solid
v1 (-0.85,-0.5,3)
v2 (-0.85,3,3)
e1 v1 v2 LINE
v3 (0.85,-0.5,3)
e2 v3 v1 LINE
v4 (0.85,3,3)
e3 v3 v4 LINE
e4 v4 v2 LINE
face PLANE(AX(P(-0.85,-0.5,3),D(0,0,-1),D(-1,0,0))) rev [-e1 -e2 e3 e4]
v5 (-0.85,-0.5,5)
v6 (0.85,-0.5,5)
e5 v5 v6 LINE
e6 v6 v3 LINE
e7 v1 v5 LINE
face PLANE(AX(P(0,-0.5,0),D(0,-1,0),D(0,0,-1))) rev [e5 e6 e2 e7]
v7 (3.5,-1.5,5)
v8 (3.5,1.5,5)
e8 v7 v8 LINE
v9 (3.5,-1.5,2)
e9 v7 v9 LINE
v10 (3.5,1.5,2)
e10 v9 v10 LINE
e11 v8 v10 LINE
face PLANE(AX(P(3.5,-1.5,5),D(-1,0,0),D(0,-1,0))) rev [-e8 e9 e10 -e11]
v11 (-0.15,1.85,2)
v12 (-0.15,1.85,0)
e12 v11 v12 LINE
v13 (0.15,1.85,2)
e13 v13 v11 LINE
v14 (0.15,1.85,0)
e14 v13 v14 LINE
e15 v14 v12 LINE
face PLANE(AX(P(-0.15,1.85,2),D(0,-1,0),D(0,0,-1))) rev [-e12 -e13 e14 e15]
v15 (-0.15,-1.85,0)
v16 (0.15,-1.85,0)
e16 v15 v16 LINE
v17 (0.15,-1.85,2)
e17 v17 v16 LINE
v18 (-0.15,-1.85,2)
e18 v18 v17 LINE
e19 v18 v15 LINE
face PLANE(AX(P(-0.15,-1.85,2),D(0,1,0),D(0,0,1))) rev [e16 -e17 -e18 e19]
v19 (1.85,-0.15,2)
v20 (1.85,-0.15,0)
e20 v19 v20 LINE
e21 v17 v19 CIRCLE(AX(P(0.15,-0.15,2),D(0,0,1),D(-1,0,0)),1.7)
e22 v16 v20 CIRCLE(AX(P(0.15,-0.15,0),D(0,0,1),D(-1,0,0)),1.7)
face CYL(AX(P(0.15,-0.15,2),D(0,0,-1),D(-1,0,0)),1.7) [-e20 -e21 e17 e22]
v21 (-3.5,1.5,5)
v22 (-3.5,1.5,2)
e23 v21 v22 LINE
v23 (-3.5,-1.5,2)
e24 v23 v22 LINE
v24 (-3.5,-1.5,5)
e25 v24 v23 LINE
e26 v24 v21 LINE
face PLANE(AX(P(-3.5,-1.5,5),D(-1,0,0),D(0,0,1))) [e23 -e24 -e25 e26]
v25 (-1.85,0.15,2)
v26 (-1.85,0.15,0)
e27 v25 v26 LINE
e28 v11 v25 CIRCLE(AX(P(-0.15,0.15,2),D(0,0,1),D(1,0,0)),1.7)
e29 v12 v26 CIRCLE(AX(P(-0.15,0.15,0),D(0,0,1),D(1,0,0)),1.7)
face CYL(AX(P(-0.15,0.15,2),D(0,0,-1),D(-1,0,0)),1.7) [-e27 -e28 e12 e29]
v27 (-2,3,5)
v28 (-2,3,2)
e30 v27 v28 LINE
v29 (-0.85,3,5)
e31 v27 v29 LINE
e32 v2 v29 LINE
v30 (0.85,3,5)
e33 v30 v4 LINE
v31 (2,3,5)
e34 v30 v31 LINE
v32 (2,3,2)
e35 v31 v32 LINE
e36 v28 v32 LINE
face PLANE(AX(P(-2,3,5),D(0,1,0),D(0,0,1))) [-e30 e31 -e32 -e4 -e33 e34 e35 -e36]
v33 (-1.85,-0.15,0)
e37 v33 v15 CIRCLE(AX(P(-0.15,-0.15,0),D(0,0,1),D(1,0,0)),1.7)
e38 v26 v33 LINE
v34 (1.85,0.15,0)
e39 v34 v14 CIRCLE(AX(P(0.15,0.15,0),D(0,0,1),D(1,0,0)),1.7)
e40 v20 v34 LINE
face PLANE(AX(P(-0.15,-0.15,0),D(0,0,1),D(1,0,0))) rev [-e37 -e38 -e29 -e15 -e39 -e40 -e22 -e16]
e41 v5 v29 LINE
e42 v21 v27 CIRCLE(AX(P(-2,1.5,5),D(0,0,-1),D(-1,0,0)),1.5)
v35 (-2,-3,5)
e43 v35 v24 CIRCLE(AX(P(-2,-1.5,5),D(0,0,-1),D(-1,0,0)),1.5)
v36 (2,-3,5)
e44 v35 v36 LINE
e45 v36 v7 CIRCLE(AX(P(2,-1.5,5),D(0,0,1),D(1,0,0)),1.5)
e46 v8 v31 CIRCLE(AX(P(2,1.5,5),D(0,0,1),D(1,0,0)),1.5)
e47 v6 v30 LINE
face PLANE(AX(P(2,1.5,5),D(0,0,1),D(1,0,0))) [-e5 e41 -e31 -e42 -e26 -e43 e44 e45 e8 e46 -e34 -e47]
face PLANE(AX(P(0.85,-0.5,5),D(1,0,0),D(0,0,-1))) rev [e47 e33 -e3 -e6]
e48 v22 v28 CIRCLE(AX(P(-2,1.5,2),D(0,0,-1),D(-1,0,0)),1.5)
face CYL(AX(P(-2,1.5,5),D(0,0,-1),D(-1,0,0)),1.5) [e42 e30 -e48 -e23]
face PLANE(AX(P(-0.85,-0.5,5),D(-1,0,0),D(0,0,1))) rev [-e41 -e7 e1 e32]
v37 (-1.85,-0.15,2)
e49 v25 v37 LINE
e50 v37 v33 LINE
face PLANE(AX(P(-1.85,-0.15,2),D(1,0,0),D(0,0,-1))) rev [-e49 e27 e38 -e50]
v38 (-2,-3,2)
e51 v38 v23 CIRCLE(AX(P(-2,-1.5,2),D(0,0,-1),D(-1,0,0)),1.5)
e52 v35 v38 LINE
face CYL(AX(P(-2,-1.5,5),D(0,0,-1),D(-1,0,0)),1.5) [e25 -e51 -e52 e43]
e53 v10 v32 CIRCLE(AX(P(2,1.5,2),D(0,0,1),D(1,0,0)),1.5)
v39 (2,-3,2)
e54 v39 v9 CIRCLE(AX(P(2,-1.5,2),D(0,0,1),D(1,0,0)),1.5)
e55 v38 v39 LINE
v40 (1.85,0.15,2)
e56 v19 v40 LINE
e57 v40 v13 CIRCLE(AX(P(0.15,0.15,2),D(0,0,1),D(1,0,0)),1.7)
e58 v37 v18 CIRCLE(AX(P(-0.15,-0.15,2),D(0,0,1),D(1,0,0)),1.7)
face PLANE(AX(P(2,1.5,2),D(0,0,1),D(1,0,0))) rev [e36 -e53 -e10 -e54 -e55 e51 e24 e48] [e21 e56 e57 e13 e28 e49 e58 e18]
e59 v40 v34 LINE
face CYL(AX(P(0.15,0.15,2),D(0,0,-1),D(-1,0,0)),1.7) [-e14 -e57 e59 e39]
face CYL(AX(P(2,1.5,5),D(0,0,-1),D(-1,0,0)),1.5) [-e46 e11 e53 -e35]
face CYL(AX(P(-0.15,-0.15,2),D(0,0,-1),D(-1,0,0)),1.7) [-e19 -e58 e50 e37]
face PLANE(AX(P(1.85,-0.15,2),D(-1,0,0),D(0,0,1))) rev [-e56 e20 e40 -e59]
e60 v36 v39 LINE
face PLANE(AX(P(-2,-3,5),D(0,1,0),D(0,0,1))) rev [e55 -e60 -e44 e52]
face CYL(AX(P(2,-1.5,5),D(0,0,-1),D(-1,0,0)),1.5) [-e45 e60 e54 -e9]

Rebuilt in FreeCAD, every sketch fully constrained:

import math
import FreeCAD as App
import Part
import Sketcher

doc = App.newDocument("Part")
params = doc.addObject("Spreadsheet::Sheet", "Params")
for row, (alias, value) in enumerate([
    ("sketch1_radius", "1.7 mm"),
    ("sketch1_width", "0.3 mm"),
    ("pad1_length", "2 mm"),
    ("sketch2_radius", "1.5 mm"),
    ("sketch2_width", "4 mm"),
    ("sketch2_height", "3 mm"),
    ("pad2_length", "3 mm"),
    ("sketch3_height", "2 mm"),
    ("sketch3_width", "1.7 mm"),
    ("pocket1_length", "3.5 mm"),
], start=1):
    params.set(f"A{row}", alias)
    params.set(f"B{row}", "=" + value)
    params.setAlias(f"B{row}", alias)

body = doc.addObject("PartDesign::Body", "Body")

# Sketch on XY plane
sketch1 = body.newObject("Sketcher::SketchObject", "Sketch")
sketch1.AttachmentSupport = (doc.getObject("XY_Plane"), [""])
sketch1.MapMode = "FlatFace"
sketch1.addGeometry([
    Part.LineSegment(App.Vector(-0.15, -1.85, 0), App.Vector(0.15, -1.85, 0)),  # 0
    Part.ArcOfCircle(Part.Circle(App.Vector(0.15, -0.15, 0), App.Vector(0, 0, 1), 1.7), math.radians(-90), math.radians(0)),  # 1
    Part.LineSegment(App.Vector(1.85, -0.15, 0), App.Vector(1.85, 0.15, 0)),  # 2
    Part.ArcOfCircle(Part.Circle(App.Vector(0.15, 0.15, 0), App.Vector(0, 0, 1), 1.7), math.radians(0), math.radians(90)),  # 3
    Part.LineSegment(App.Vector(0.15, 1.85, 0), App.Vector(-0.15, 1.85, 0)),  # 4
    Part.ArcOfCircle(Part.Circle(App.Vector(-0.15, 0.15, 0), App.Vector(0, 0, 1), 1.7), math.radians(90), math.radians(180)),  # 5
    Part.LineSegment(App.Vector(-1.85, 0.15, 0), App.Vector(-1.85, -0.15, 0)),  # 6
    Part.ArcOfCircle(Part.Circle(App.Vector(-0.15, -0.15, 0), App.Vector(0, 0, 1), 1.7), math.radians(180), math.radians(270)),  # 7
], False)
sketch1.addConstraint([
    Sketcher.Constraint("Tangent", 0, 2, 1, 1),
    Sketcher.Constraint("Tangent", 1, 2, 2, 1),
    Sketcher.Constraint("Tangent", 2, 2, 3, 1),
    Sketcher.Constraint("Tangent", 3, 2, 4, 1),
    Sketcher.Constraint("Tangent", 4, 2, 5, 1),
    Sketcher.Constraint("Tangent", 5, 2, 6, 1),
    Sketcher.Constraint("Tangent", 6, 2, 7, 1),
    Sketcher.Constraint("Tangent", 7, 2, 0, 1),
    Sketcher.Constraint("Horizontal", 0),
    Sketcher.Constraint("Vertical", 2),
    Sketcher.Constraint("Horizontal", 4),
    Sketcher.Constraint("Vertical", 6),
    Sketcher.Constraint("Equal", 1, 3),
    Sketcher.Constraint("Equal", 3, 5),
    Sketcher.Constraint("Equal", 5, 7),
    Sketcher.Constraint("Symmetric", 1, 3, 5, 3, -1, 1),
    Sketcher.Constraint("Equal", 4, 2),
    Sketcher.Constraint("Radius", 1, 1.7),
    Sketcher.Constraint("DistanceX", 0, 1, 0, 2, 0.3),
])
sketch1.setExpression("Constraints[17]", "Params.sketch1_radius")
sketch1.setExpression("Constraints[18]", "Params.sketch1_width")
pad1 = body.newObject("PartDesign::Pad", "Pad")
pad1.Profile = sketch1
pad1.setExpression("Length", "Params.pad1_length")

# Sketch on XY plane
sketch2 = body.newObject("Sketcher::SketchObject", "Sketch001")
sketch2.AttachmentSupport = (doc.getObject("XY_Plane"), [""])
sketch2.MapMode = "FlatFace"
sketch2.AttachmentOffset = App.Placement(App.Vector(0, 0, 2), App.Rotation())
sketch2.addGeometry([
    Part.LineSegment(App.Vector(-2, -3, 0), App.Vector(2, -3, 0)),  # 0
    Part.ArcOfCircle(Part.Circle(App.Vector(2, -1.5, 0), App.Vector(0, 0, 1), 1.5), math.radians(-90), math.radians(0)),  # 1
    Part.LineSegment(App.Vector(3.5, -1.5, 0), App.Vector(3.5, 1.5, 0)),  # 2
    Part.ArcOfCircle(Part.Circle(App.Vector(2, 1.5, 0), App.Vector(0, 0, 1), 1.5), math.radians(0), math.radians(90)),  # 3
    Part.LineSegment(App.Vector(2, 3, 0), App.Vector(-2, 3, 0)),  # 4
    Part.ArcOfCircle(Part.Circle(App.Vector(-2, 1.5, 0), App.Vector(0, 0, 1), 1.5), math.radians(90), math.radians(180)),  # 5
    Part.LineSegment(App.Vector(-3.5, 1.5, 0), App.Vector(-3.5, -1.5, 0)),  # 6
    Part.ArcOfCircle(Part.Circle(App.Vector(-2, -1.5, 0), App.Vector(0, 0, 1), 1.5), math.radians(180), math.radians(270)),  # 7
], False)
sketch2.addConstraint([
    Sketcher.Constraint("Tangent", 0, 2, 1, 1),
    Sketcher.Constraint("Tangent", 1, 2, 2, 1),
    Sketcher.Constraint("Tangent", 2, 2, 3, 1),
    Sketcher.Constraint("Tangent", 3, 2, 4, 1),
    Sketcher.Constraint("Tangent", 4, 2, 5, 1),
    Sketcher.Constraint("Tangent", 5, 2, 6, 1),
    Sketcher.Constraint("Tangent", 6, 2, 7, 1),
    Sketcher.Constraint("Tangent", 7, 2, 0, 1),
    Sketcher.Constraint("Horizontal", 0),
    Sketcher.Constraint("Vertical", 2),
    Sketcher.Constraint("Horizontal", 4),
    Sketcher.Constraint("Vertical", 6),
    Sketcher.Constraint("Equal", 1, 3),
    Sketcher.Constraint("Equal", 3, 5),
    Sketcher.Constraint("Equal", 5, 7),
    Sketcher.Constraint("Symmetric", 1, 3, 5, 3, -1, 1),
    Sketcher.Constraint("Radius", 1, 1.5),
    Sketcher.Constraint("DistanceX", 0, 1, 0, 2, 4.0),
    Sketcher.Constraint("DistanceY", 2, 1, 2, 2, 3.0),
])
sketch2.setExpression("Constraints[16]", "Params.sketch2_radius")
sketch2.setExpression("Constraints[17]", "Params.sketch2_width")
sketch2.setExpression("Constraints[18]", "Params.sketch2_height")
pad2 = body.newObject("PartDesign::Pad", "Pad001")
pad2.Profile = sketch2
pad2.setExpression("Length", "Params.pad2_length")

# Sketch on XZ plane
sketch3 = body.newObject("Sketcher::SketchObject", "Sketch002")
sketch3.AttachmentSupport = (doc.getObject("XZ_Plane"), [""])
sketch3.MapMode = "FlatFace"
sketch3.AttachmentOffset = App.Placement(App.Vector(0, 0, -3), App.Rotation())
sketch3.addGeometry([
    Part.LineSegment(App.Vector(-0.8, 3, 0), App.Vector(-0.8, 5, 0)),
    Part.LineSegment(App.Vector(-0.8, 5, 0), App.Vector(0.8, 5, 0)),
    Part.LineSegment(App.Vector(0.8, 5, 0), App.Vector(0.8, 3, 0)),
    Part.LineSegment(App.Vector(0.8, 3, 0), App.Vector(-0.8, 3, 0)),
], False)
sketch3.addConstraint([
    Sketcher.Constraint("Coincident", 0, 2, 1, 1),
    Sketcher.Constraint("Coincident", 1, 2, 2, 1),
    Sketcher.Constraint("Coincident", 2, 2, 3, 1),
    Sketcher.Constraint("Coincident", 3, 2, 0, 1),
    Sketcher.Constraint("Vertical", 0),
    Sketcher.Constraint("Horizontal", 1),
    Sketcher.Constraint("Vertical", 2),
    Sketcher.Constraint("Horizontal", 3),
    Sketcher.Constraint("DistanceY", 0, 1, 0, 2, 2.0),
    Sketcher.Constraint("DistanceX", 1, 1, 1, 2, 1.7),
    Sketcher.Constraint("DistanceY", -1, 1, 0, 2, 5.0),
    Sketcher.Constraint("DistanceX", 0, 2, -1, 1, 0.85),
])
sketch3.setExpression("Constraints[8]", "Params.sketch3_height")
sketch3.setExpression("Constraints[9]", "Params.sketch3_width")
pocket1 = body.newObject("PartDesign::Pocket", "Pocket")
pocket1.Profile = sketch3
pocket1.setExpression("Length", "Params.pocket1_length")
pocket1.Reversed = True

doc.recompute()
